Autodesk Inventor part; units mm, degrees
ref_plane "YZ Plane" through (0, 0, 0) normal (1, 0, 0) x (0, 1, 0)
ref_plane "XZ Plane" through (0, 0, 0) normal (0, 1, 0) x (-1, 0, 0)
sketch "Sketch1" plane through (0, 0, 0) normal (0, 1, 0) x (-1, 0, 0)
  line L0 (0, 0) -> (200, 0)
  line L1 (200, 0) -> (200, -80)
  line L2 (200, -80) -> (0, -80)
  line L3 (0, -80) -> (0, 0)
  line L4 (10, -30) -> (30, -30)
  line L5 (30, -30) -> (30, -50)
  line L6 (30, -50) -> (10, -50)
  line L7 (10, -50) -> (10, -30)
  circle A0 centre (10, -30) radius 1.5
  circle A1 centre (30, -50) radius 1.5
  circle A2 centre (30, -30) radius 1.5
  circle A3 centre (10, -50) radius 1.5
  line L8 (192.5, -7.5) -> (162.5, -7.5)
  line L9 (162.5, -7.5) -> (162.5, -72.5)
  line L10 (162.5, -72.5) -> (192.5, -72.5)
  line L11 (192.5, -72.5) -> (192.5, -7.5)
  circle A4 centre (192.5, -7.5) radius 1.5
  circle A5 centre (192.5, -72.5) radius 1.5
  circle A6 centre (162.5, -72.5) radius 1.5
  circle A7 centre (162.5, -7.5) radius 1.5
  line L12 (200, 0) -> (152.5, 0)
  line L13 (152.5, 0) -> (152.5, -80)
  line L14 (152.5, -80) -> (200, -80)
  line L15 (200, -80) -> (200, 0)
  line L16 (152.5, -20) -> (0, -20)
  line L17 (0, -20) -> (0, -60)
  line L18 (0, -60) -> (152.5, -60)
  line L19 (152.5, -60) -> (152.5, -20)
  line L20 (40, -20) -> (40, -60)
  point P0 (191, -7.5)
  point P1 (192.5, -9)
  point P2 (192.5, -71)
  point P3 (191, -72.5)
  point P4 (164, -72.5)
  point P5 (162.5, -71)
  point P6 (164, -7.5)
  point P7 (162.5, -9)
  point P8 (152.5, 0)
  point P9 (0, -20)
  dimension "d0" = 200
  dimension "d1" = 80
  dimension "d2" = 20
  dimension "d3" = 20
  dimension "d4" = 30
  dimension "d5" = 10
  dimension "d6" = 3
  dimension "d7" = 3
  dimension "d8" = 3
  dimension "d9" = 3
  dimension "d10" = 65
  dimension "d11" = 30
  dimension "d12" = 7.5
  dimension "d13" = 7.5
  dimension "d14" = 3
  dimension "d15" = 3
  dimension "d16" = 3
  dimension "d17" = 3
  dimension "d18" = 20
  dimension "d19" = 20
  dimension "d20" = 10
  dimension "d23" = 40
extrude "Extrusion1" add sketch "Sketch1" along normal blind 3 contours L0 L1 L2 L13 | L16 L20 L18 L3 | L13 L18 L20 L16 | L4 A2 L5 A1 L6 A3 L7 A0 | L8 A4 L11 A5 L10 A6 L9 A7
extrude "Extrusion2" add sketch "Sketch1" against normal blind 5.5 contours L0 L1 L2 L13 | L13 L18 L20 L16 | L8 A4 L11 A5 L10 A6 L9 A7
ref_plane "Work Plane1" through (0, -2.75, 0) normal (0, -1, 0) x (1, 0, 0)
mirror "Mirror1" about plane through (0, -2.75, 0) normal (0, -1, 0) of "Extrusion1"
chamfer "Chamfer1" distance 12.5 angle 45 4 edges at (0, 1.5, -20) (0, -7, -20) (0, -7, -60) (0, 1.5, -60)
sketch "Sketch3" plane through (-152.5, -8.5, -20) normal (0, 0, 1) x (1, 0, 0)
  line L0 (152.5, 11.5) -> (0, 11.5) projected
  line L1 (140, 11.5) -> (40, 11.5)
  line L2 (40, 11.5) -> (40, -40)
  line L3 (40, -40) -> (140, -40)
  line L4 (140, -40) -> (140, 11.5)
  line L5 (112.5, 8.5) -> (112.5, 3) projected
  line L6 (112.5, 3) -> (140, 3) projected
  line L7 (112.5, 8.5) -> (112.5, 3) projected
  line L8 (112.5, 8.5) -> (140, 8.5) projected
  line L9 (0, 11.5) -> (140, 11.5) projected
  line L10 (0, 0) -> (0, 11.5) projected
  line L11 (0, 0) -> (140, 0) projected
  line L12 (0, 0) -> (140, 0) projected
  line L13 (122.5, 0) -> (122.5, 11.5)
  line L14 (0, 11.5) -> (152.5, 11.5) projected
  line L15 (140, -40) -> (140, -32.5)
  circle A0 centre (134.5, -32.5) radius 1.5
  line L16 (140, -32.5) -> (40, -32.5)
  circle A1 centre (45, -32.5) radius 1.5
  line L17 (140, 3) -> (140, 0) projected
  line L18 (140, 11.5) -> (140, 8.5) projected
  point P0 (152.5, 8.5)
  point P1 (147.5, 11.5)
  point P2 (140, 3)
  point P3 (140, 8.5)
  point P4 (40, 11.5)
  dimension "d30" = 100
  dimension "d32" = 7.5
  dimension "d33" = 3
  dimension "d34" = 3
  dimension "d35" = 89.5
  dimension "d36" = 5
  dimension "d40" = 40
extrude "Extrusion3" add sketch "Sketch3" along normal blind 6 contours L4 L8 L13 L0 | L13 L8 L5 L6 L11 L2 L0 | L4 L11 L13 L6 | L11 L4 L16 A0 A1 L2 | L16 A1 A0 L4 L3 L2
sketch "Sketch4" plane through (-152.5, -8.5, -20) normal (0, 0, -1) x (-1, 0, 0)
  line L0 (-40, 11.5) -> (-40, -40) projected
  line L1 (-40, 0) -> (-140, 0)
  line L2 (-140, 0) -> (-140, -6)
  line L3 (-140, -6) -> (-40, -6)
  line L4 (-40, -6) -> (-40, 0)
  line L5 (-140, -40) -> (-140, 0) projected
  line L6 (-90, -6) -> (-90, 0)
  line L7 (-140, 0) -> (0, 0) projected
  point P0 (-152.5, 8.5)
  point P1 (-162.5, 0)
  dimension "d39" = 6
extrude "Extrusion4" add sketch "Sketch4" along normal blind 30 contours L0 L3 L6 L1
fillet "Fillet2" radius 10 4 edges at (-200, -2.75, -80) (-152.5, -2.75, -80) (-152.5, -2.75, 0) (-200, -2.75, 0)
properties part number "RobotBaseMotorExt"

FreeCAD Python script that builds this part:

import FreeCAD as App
import Part
import Sketcher

V = App.Vector


def edges_at(feature, points):
    """Names of the edges that pass closest to the given points."""
    edges = feature.Shape.Edges
    near = lambda p: min(range(len(edges)), key=lambda i: edges[i].distToShape(Part.Vertex(*p))[0])
    return sorted({f"Edge{near(p) + 1}" for p in points})


def add_polygon(sketch, points):
    """Adds a closed chain of lines whose ends are joined by coincident constraints."""
    first, n = sketch.GeometryCount, len(points)
    for a, b in zip(points, points[1:] + points[:1]):
        sketch.addGeometry(Part.LineSegment(App.Vector(*a, 0), App.Vector(*b, 0)), False)
    for i in range(n):
        sketch.addConstraint(Sketcher.Constraint("Coincident", first + i, 2, first + (i + 1) % n, 1))

doc = App.newDocument("Part")
body = doc.addObject("PartDesign::Body", "Body")

sketch1 = body.newObject("Sketcher::SketchObject", "Sketch")
sketch1.AttachmentSupport = (doc.getObject("XZ_Plane"), [""])
sketch1.MapMode = "FlatFace"
add_polygon(sketch1, [(-200, 0), (-152.5, 0), (-152.5, -20), (0, -20), (0, -60), (-152.5, -60), (-152.5, -80), (-200, -80)])
sketch1.addGeometry(Part.Circle(V(-162.5, -7.5, 0), V(0, 0, 1), 1.5), False)
sketch1.addGeometry(Part.Circle(V(-162.5, -72.5, 0), V(0, 0, 1), 1.5), False)
sketch1.addGeometry(Part.Circle(V(-192.5, -72.5, 0), V(0, 0, 1), 1.5), False)
sketch1.addGeometry(Part.Circle(V(-192.5, -7.5, 0), V(0, 0, 1), 1.5), False)
sketch1.addGeometry(Part.Circle(V(-10, -30, 0), V(0, 0, 1), 1.5), False)
sketch1.addGeometry(Part.Circle(V(-10, -50, 0), V(0, 0, 1), 1.5), False)
sketch1.addGeometry(Part.Circle(V(-30, -50, 0), V(0, 0, 1), 1.5), False)
sketch1.addGeometry(Part.Circle(V(-30, -30, 0), V(0, 0, 1), 1.5), False)
sketch1.addConstraint([
    Sketcher.Constraint("Horizontal", 0),
    Sketcher.Constraint("Vertical", 1),
    Sketcher.Constraint("Horizontal", 2),
    Sketcher.Constraint("Vertical", 3),
    Sketcher.Constraint("Horizontal", 4),
    Sketcher.Constraint("Vertical", 5),
    Sketcher.Constraint("Horizontal", 6),
    Sketcher.Constraint("Vertical", 7),
    Sketcher.Constraint("Equal", 8, 9),
    Sketcher.Constraint("Equal", 9, 10),
    Sketcher.Constraint("Equal", 10, 11),
    Sketcher.Constraint("Equal", 11, 12),
    Sketcher.Constraint("Equal", 12, 13),
    Sketcher.Constraint("Equal", 13, 14),
    Sketcher.Constraint("Equal", 14, 15),
    Sketcher.Constraint("PointOnObject", 0, 2, -1),
    Sketcher.Constraint("PointOnObject", 2, 2, -2),
    Sketcher.Constraint("Horizontal", 9, 3, 10, 3),
    Sketcher.Constraint("Horizontal", 8, 3, 11, 3),
    Sketcher.Constraint("Horizontal", 13, 3, 14, 3),
    Sketcher.Constraint("Horizontal", 12, 3, 15, 3),
    Sketcher.Constraint("Vertical", 8, 3, 9, 3),
    Sketcher.Constraint("Vertical", 10, 3, 11, 3),
    Sketcher.Constraint("Vertical", 12, 3, 13, 3),
    Sketcher.Constraint("Vertical", 14, 3, 15, 3),
    Sketcher.Constraint("Vertical", 1, 2, 4, 2),
    Sketcher.Constraint("Equal", 1, 5),
    Sketcher.Constraint("Diameter", 8, 3.0),
    Sketcher.Constraint("DistanceY", 1, 2, 1, 1, 20.0),
    Sketcher.Constraint("DistanceY", 3, 2, 3, 1, 40.0),
    Sketcher.Constraint("DistanceX", 12, 3, -1, 1, 10.0),
    Sketcher.Constraint("DistanceY", 12, 3, -1, 1, 30.0),
    Sketcher.Constraint("DistanceX", 14, 3, -1, 1, 30.0),
    Sketcher.Constraint("DistanceX", 6, 2, -1, 1, 200.0),
    Sketcher.Constraint("DistanceY", 9, 3, 8, 3, 65.0),
    Sketcher.Constraint("DistanceX", 10, 3, 9, 3, 30.0),
    Sketcher.Constraint("DistanceY", 13, 3, 12, 3, 20.0),
    Sketcher.Constraint("DistanceX", 8, 3, 0, 2, 10.0),
    Sketcher.Constraint("DistanceY", 8, 3, -1, 1, 7.5),
    Sketcher.Constraint("DistanceX", 6, 2, 10, 3, 7.5),
])
pad1 = body.newObject("PartDesign::Pad", "Pad")
pad1.Profile = sketch1
pad1.Length = 3
pad1.Reversed = True

sketch2 = body.newObject("Sketcher::SketchObject", "Sketch001")
sketch2.AttachmentSupport = (doc.getObject("XZ_Plane"), [""])
sketch2.MapMode = "FlatFace"
add_polygon(sketch2, [(-200, 0), (-152.5, 0), (-152.5, -20), (-40, -20), (-40, -60), (-152.5, -60), (-152.5, -80), (-200, -80)])
sketch2.addGeometry(Part.Circle(V(-162.5, -7.5, 0), V(0, 0, 1), 1.5), False)
sketch2.addGeometry(Part.Circle(V(-162.5, -72.5, 0), V(0, 0, 1), 1.5), False)
sketch2.addGeometry(Part.Circle(V(-192.5, -72.5, 0), V(0, 0, 1), 1.5), False)
sketch2.addGeometry(Part.Circle(V(-192.5, -7.5, 0), V(0, 0, 1), 1.5), False)
sketch2.addConstraint([
    Sketcher.Constraint("Horizontal", 0),
    Sketcher.Constraint("Vertical", 1),
    Sketcher.Constraint("Horizontal", 2),
    Sketcher.Constraint("Vertical", 3),
    Sketcher.Constraint("Horizontal", 4),
    Sketcher.Constraint("Vertical", 5),
    Sketcher.Constraint("Horizontal", 6),
    Sketcher.Constraint("Vertical", 7),
    Sketcher.Constraint("Equal", 8, 9),
    Sketcher.Constraint("Equal", 9, 10),
    Sketcher.Constraint("Equal", 10, 11),
    Sketcher.Constraint("PointOnObject", 0, 2, -1),
    Sketcher.Constraint("Horizontal", 9, 3, 10, 3),
    Sketcher.Constraint("Horizontal", 8, 3, 11, 3),
    Sketcher.Constraint("Vertical", 8, 3, 9, 3),
    Sketcher.Constraint("Vertical", 10, 3, 11, 3),
    Sketcher.Constraint("Vertical", 1, 2, 4, 2),
    Sketcher.Constraint("Equal", 1, 5),
    Sketcher.Constraint("Diameter", 8, 3.0),
    Sketcher.Constraint("DistanceY", 1, 2, 1, 1, 20.0),
    Sketcher.Constraint("DistanceY", 3, 2, 3, 1, 40.0),
    Sketcher.Constraint("DistanceX", 2, 2, -1, 1, 40.0),
    Sketcher.Constraint("DistanceX", 6, 2, -1, 1, 200.0),
    Sketcher.Constraint("DistanceY", 9, 3, 8, 3, 65.0),
    Sketcher.Constraint("DistanceX", 10, 3, 9, 3, 30.0),
    Sketcher.Constraint("DistanceX", 8, 3, 0, 2, 10.0),
    Sketcher.Constraint("DistanceY", 8, 3, -1, 1, 7.5),
    Sketcher.Constraint("DistanceX", 6, 2, 10, 3, 7.5),
])
pad2 = body.newObject("PartDesign::Pad", "Pad001")
pad2.Profile = sketch2
pad2.Length = 5.5
doc.recompute()

datumplane = body.newObject("PartDesign::Plane", "DatumPlane")
datumplane.AttachmentSupport = (doc.getObject("XZ_Plane"), [""])
datumplane.MapMode = "FlatFace"
datumplane.AttachmentOffset = App.Placement(V(0, 0, 2.75), App.Rotation())
mirrored = body.newObject("PartDesign::Mirrored", "Mirrored")
mirrored.Originals = [pad1]
mirrored.MirrorPlane = (datumplane, [""])
body.Tip = mirrored
doc.recompute()

chamfer = body.newObject("PartDesign::Chamfer", "Chamfer")
chamfer.Base = (mirrored, edges_at(mirrored, [
    (0, 1.5, -20),
    (0, -7, -20),
    (0, -7, -60),
    (0, 1.5, -60),
]))
chamfer.Size = 12.5

sketch3 = body.newObject("Sketcher::SketchObject", "Sketch002")
sketch3.AttachmentSupport = (doc.getObject("XY_Plane"), [""])
sketch3.MapMode = "FlatFace"
sketch3.AttachmentOffset = App.Placement(V(0, 0, -20), App.Rotation())
add_polygon(sketch3, [(-12.5, 0), (-12.5, 3), (-112.5, 3), (-112.5, -48.5), (-12.5, -48.5), (-12.5, -5.5), (-40, -5.5), (-40, 0)])
sketch3.addGeometry(Part.Circle(V(-18, -41, 0), V(0, 0, 1), 1.5), False)
sketch3.addGeometry(Part.Circle(V(-107.5, -41, 0), V(0, 0, 1), 1.5), False)
sketch3.addConstraint([
    Sketcher.Constraint("Vertical", 0),
    Sketcher.Constraint("Horizontal", 1),
    Sketcher.Constraint("Vertical", 2),
    Sketcher.Constraint("Horizontal", 3),
    Sketcher.Constraint("Vertical", 4),
    Sketcher.Constraint("Horizontal", 5),
    Sketcher.Constraint("Vertical", 6),
    Sketcher.Constraint("Horizontal", 7),
    Sketcher.Constraint("Equal", 8, 9),
    Sketcher.Constraint("PointOnObject", 6, 2, -1),
    Sketcher.Constraint("Horizontal", 8, 3, 9, 3),
    Sketcher.Constraint("Vertical", 0, 2, 3, 2),
    Sketcher.Constraint("Diameter", 8, 3.0),
    Sketcher.Constraint("DistanceX", 1, 2, 1, 1, 100.0),
    Sketcher.Constraint("DistanceY", 0, 1, 0, 2, 3.0),
    Sketcher.Constraint("DistanceX", 5, 2, -1, 1, 40.0),
    Sketcher.Constraint("DistanceX", 1, 2, 9, 3, 5.0),
    Sketcher.Constraint("DistanceX", 9, 3, 8, 3, 89.5),
    Sketcher.Constraint("DistanceY", 2, 2, 9, 3, 7.5),
    Sketcher.Constraint("DistanceY", 4, 1, 4, 2, 43.0),
    Sketcher.Constraint("DistanceX", 5, 2, 5, 1, 27.5),
    Sketcher.Constraint("DistanceY", 2, 2, 2, 1, 51.5),
])
pad3 = body.newObject("PartDesign::Pad", "Pad002")
pad3.Profile = sketch3
pad3.Length = 6

sketch4 = body.newObject("Sketcher::SketchObject", "Sketch003")
sketch4.AttachmentSupport = (doc.getObject("XY_Plane"), [""])
sketch4.MapMode = "FlatFace"
sketch4.AttachmentOffset = App.Placement(V(0, 0, -20), App.Rotation())
add_polygon(sketch4, [(-112, -14), (-112, -8), (-62, -8), (-62, -14)])
sketch4.addConstraint([
    Sketcher.Constraint("Vertical", 0),
    Sketcher.Constraint("Horizontal", 1),
    Sketcher.Constraint("Vertical", 2),
    Sketcher.Constraint("Horizontal", 3),
    Sketcher.Constraint("DistanceY", 0, 1, 0, 2, 6.0),
    Sketcher.Constraint("DistanceX", 1, 1, 1, 2, 50.0),
    Sketcher.Constraint("DistanceX", 0, 2, -1, 1, 112.5),
    Sketcher.Constraint("DistanceY", 0, 2, -1, 1, 8.5),
])
pad4 = body.newObject("PartDesign::Pad", "Pad003")
pad4.Profile = sketch4
pad4.Length = 30
pad4.Reversed = True
doc.recompute()

fillet = body.newObject("PartDesign::Fillet", "Fillet")
fillet.Base = (pad4, edges_at(pad4, [
    (-200, -2.75, -80),
    (-152.5, -2.75, -80),
    (-152.5, -2.75, 0),
    (-200, -2.75, 0),
]))
fillet.Radius = 10

doc.recompute()
